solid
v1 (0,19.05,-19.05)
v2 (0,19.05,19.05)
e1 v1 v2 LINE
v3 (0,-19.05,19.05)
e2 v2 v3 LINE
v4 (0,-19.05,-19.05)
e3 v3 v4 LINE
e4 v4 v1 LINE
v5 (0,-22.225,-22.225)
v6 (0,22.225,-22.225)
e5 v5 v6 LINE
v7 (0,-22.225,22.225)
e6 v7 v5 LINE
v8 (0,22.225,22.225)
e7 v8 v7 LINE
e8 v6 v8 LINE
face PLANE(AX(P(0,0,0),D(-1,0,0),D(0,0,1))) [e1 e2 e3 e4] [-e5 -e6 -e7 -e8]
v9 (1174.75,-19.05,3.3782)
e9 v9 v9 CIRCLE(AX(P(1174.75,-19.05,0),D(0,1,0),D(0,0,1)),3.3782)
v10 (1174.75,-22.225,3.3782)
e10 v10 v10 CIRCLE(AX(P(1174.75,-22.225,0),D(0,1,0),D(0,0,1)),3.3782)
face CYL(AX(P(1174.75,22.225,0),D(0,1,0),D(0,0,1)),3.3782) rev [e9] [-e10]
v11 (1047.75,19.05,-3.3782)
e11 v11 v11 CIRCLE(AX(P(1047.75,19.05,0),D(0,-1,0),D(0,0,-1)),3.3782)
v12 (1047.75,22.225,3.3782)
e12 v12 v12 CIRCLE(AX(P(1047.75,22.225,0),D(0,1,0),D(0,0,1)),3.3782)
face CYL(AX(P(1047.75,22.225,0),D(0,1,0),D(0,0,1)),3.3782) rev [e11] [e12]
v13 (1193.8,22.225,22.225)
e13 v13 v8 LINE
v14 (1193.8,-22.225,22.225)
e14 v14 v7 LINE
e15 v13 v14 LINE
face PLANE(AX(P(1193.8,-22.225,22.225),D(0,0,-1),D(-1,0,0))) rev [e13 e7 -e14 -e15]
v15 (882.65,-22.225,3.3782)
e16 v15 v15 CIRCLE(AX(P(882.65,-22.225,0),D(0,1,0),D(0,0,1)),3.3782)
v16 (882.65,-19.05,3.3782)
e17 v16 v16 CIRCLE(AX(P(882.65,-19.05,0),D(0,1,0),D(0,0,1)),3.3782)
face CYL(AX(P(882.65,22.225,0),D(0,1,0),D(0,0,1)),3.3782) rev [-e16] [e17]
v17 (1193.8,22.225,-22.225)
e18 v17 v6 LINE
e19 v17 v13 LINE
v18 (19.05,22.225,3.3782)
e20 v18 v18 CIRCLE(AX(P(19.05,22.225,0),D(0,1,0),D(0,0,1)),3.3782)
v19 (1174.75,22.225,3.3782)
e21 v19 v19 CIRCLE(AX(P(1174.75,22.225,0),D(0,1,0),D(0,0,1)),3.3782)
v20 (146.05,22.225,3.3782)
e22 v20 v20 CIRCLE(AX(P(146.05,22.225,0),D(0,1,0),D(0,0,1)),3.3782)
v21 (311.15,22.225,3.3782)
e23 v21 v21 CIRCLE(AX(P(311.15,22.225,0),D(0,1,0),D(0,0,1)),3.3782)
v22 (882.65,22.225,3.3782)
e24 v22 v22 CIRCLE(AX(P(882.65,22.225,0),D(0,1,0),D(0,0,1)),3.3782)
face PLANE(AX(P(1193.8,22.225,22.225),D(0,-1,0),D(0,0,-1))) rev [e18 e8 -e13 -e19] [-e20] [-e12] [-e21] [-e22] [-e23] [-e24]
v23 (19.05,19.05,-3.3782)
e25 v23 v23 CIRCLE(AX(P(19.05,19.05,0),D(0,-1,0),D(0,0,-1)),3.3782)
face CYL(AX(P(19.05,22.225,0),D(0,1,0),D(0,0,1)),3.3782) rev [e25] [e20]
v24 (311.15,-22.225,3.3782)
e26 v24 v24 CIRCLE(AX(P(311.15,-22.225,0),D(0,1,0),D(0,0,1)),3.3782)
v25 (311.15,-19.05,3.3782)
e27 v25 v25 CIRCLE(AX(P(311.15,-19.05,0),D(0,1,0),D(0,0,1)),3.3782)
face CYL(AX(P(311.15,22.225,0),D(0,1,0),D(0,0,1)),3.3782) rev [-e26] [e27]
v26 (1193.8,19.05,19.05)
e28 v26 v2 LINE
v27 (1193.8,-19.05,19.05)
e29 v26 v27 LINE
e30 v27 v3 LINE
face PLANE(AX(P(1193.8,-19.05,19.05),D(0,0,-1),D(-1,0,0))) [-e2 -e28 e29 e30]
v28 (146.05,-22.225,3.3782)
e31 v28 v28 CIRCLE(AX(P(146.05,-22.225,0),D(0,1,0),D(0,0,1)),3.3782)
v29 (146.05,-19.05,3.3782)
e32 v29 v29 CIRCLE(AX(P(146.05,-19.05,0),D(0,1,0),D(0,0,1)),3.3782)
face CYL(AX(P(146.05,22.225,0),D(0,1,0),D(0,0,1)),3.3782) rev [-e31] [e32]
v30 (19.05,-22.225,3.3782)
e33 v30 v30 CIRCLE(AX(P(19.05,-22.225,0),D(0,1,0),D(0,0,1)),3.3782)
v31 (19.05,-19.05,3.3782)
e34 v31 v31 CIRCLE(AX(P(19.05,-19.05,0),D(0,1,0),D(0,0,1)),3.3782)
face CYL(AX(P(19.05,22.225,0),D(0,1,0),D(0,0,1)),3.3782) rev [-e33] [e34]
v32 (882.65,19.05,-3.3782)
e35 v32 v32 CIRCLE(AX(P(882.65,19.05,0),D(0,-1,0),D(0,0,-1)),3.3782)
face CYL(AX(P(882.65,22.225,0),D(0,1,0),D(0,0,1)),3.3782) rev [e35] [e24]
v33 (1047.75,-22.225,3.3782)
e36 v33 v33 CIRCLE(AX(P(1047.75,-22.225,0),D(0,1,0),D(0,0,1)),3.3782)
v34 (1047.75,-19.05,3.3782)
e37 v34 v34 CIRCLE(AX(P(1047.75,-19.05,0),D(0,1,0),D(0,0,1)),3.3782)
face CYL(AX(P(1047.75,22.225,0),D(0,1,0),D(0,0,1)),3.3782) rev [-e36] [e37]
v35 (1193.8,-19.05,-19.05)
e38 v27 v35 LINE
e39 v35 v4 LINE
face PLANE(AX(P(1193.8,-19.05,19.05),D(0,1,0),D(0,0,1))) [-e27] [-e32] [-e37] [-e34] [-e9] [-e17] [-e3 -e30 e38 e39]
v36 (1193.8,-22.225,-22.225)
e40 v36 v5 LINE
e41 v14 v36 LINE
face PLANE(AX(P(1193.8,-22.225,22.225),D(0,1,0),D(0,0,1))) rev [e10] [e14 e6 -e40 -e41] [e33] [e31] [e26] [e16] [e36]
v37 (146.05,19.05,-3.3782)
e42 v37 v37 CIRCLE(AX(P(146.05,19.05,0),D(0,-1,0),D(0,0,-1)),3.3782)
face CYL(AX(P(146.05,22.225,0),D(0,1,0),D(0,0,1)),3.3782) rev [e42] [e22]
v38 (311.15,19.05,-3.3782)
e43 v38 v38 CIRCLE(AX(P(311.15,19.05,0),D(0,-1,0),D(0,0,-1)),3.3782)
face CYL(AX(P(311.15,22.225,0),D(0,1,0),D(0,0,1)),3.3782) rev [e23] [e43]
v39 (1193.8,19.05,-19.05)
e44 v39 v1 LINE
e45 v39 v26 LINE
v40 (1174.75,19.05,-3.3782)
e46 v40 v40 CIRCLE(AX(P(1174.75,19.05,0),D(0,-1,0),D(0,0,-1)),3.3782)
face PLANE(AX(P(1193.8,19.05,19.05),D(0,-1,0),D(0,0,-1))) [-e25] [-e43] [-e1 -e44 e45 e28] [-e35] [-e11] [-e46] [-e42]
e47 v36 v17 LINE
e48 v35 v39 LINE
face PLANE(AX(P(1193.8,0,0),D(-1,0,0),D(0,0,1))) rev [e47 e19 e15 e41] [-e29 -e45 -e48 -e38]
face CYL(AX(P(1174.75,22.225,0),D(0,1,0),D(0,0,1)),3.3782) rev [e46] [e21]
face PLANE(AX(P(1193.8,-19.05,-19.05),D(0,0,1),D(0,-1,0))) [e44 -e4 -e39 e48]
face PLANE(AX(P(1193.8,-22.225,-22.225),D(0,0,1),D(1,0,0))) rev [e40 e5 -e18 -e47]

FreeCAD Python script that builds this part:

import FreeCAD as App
import Part
import Sketcher

V = App.Vector
Q = App.Units.Quantity

doc = App.newDocument("Part")
body = doc.addObject("PartDesign::Body", "Body")

# Sketch on YZ plane
sketch1 = body.newObject("Sketcher::SketchObject", "Sketch")
sketch1.AttachmentSupport = (doc.getObject("YZ_Plane"), [""])
sketch1.MapMode = "FlatFace"
sketch1.addGeometry(Part.LineSegment(V(22.225, 22.225, 0), V(-22.225, 22.225, 0)), False)
sketch1.addGeometry(Part.LineSegment(V(-22.225, 22.225, 0), V(-22.225, -22.225, 0)), False)
sketch1.addGeometry(Part.LineSegment(V(-22.225, -22.225, 0), V(22.225, -22.225, 0)), False)
sketch1.addGeometry(Part.LineSegment(V(22.225, -22.225, 0), V(22.225, 22.225, 0)), False)
sketch1.addGeometry(Part.LineSegment(V(-19.05, -19.05, 0), V(-19.05, 19.05, 0)), False)
sketch1.addGeometry(Part.LineSegment(V(-19.05, 19.05, 0), V(19.05, 19.05, 0)), False)
sketch1.addGeometry(Part.LineSegment(V(19.05, 19.05, 0), V(19.05, -19.05, 0)), False)
sketch1.addGeometry(Part.LineSegment(V(19.05, -19.05, 0), V(-19.05, -19.05, 0)), False)
sketch1.addConstraint(Sketcher.Constraint("Coincident", 0, 2, 1, 1))
sketch1.addConstraint(Sketcher.Constraint("Coincident", 1, 2, 2, 1))
sketch1.addConstraint(Sketcher.Constraint("Coincident", 2, 2, 3, 1))
sketch1.addConstraint(Sketcher.Constraint("Coincident", 3, 2, 0, 1))
sketch1.addConstraint(Sketcher.Constraint("Coincident", 4, 2, 5, 1))
sketch1.addConstraint(Sketcher.Constraint("Coincident", 5, 2, 6, 1))
sketch1.addConstraint(Sketcher.Constraint("Coincident", 6, 2, 7, 1))
sketch1.addConstraint(Sketcher.Constraint("Coincident", 7, 2, 4, 1))
sketch1.addConstraint(Sketcher.Constraint("Horizontal", 0))
sketch1.addConstraint(Sketcher.Constraint("Vertical", 1))
sketch1.addConstraint(Sketcher.Constraint("Horizontal", 2))
sketch1.addConstraint(Sketcher.Constraint("Vertical", 3))
sketch1.addConstraint(Sketcher.Constraint("Vertical", 4))
sketch1.addConstraint(Sketcher.Constraint("Horizontal", 5))
sketch1.addConstraint(Sketcher.Constraint("Vertical", 6))
sketch1.addConstraint(Sketcher.Constraint("Horizontal", 7))
sketch1.addConstraint(Sketcher.Constraint("Symmetric", 0, 2, 2, 2, -1, 1))
sketch1.addConstraint(Sketcher.Constraint("Symmetric", 4, 2, 6, 2, -1, 1))
sketch1.addConstraint(Sketcher.Constraint("Equal", 2, 1))
sketch1.addConstraint(Sketcher.Constraint("Equal", 7, 4))
sketch1.addConstraint(Sketcher.Constraint("DistanceX", 5, 1, 5, 2, Q("1.5 in")))
sketch1.addConstraint(Sketcher.Constraint("DistanceX", 0, 2, 0, 1, Q("1.75 in")))
pad1 = body.newObject("PartDesign::Pad", "Pad")
pad1.Profile = sketch1
pad1.Length = Q("47 in")

# Sketch on XZ plane
sketch2 = body.newObject("Sketcher::SketchObject", "Sketch001")
sketch2.AttachmentSupport = (doc.getObject("XZ_Plane"), [""])
sketch2.MapMode = "FlatFace"
sketch2.AttachmentOffset = App.Placement(V(0, 0, -0.875 * 25.4), App.Rotation())
sketch2.addGeometry(Part.Circle(V(311.15, 0, 0), V(0, 0, 1), 3.3782), False)
sketch2.addGeometry(Part.Circle(V(146.05, 0, 0), V(0, 0, 1), 3.3782), False)
sketch2.addGeometry(Part.Circle(V(19.05, 0, 0), V(0, 0, 1), 3.3782), False)
sketch2.addGeometry(Part.Circle(V(1174.75, 0, 0), V(0, 0, 1), 3.3782), False)
sketch2.addGeometry(Part.Circle(V(1047.75, 0, 0), V(0, 0, 1), 3.3782), False)
sketch2.addGeometry(Part.Circle(V(882.65, 0, 0), V(0, 0, 1), 3.3782), False)
sketch2.addConstraint(Sketcher.Constraint("Equal", 0, 1))
sketch2.addConstraint(Sketcher.Constraint("Equal", 1, 2))
sketch2.addConstraint(Sketcher.Constraint("Equal", 2, 3))
sketch2.addConstraint(Sketcher.Constraint("Equal", 3, 4))
sketch2.addConstraint(Sketcher.Constraint("Equal", 4, 5))
sketch2.addConstraint(Sketcher.Constraint("PointOnObject", 0, 3, -1))
sketch2.addConstraint(Sketcher.Constraint("PointOnObject", 1, 3, -1))
sketch2.addConstraint(Sketcher.Constraint("PointOnObject", 2, 3, -1))
sketch2.addConstraint(Sketcher.Constraint("PointOnObject", 3, 3, -1))
sketch2.addConstraint(Sketcher.Constraint("PointOnObject", 4, 3, -1))
sketch2.addConstraint(Sketcher.Constraint("PointOnObject", 5, 3, -1))
sketch2.addConstraint(Sketcher.Constraint("Diameter", 0, Q("0.266 in")))
sketch2.addConstraint(Sketcher.Constraint("DistanceX", 2, 3, 1, 3, Q("5 in")))
sketch2.addConstraint(Sketcher.Constraint("DistanceX", 0, 3, 3, 3, Q("34 in")))
sketch2.addConstraint(Sketcher.Constraint("DistanceX", 4, 3, 3, 3, Q("5 in")))
sketch2.addConstraint(Sketcher.Constraint("DistanceX", 1, 3, 5, 3, Q("29 in")))
sketch2.addConstraint(Sketcher.Constraint("DistanceX", 1, 3, 0, 3, Q("6.5 in")))
sketch2.addConstraint(Sketcher.Constraint("DistanceX", -1, 1, 0, 3, Q("12.25 in")))
doc.recompute()
hole = body.newObject("PartDesign::Hole", "Hole")
hole.Profile = sketch2
hole.ThreadType = "None"
hole.Diameter = Q("0.266 in")
hole.DepthType = "ThroughAll"
hole.Reversed = True

doc.recompute()
